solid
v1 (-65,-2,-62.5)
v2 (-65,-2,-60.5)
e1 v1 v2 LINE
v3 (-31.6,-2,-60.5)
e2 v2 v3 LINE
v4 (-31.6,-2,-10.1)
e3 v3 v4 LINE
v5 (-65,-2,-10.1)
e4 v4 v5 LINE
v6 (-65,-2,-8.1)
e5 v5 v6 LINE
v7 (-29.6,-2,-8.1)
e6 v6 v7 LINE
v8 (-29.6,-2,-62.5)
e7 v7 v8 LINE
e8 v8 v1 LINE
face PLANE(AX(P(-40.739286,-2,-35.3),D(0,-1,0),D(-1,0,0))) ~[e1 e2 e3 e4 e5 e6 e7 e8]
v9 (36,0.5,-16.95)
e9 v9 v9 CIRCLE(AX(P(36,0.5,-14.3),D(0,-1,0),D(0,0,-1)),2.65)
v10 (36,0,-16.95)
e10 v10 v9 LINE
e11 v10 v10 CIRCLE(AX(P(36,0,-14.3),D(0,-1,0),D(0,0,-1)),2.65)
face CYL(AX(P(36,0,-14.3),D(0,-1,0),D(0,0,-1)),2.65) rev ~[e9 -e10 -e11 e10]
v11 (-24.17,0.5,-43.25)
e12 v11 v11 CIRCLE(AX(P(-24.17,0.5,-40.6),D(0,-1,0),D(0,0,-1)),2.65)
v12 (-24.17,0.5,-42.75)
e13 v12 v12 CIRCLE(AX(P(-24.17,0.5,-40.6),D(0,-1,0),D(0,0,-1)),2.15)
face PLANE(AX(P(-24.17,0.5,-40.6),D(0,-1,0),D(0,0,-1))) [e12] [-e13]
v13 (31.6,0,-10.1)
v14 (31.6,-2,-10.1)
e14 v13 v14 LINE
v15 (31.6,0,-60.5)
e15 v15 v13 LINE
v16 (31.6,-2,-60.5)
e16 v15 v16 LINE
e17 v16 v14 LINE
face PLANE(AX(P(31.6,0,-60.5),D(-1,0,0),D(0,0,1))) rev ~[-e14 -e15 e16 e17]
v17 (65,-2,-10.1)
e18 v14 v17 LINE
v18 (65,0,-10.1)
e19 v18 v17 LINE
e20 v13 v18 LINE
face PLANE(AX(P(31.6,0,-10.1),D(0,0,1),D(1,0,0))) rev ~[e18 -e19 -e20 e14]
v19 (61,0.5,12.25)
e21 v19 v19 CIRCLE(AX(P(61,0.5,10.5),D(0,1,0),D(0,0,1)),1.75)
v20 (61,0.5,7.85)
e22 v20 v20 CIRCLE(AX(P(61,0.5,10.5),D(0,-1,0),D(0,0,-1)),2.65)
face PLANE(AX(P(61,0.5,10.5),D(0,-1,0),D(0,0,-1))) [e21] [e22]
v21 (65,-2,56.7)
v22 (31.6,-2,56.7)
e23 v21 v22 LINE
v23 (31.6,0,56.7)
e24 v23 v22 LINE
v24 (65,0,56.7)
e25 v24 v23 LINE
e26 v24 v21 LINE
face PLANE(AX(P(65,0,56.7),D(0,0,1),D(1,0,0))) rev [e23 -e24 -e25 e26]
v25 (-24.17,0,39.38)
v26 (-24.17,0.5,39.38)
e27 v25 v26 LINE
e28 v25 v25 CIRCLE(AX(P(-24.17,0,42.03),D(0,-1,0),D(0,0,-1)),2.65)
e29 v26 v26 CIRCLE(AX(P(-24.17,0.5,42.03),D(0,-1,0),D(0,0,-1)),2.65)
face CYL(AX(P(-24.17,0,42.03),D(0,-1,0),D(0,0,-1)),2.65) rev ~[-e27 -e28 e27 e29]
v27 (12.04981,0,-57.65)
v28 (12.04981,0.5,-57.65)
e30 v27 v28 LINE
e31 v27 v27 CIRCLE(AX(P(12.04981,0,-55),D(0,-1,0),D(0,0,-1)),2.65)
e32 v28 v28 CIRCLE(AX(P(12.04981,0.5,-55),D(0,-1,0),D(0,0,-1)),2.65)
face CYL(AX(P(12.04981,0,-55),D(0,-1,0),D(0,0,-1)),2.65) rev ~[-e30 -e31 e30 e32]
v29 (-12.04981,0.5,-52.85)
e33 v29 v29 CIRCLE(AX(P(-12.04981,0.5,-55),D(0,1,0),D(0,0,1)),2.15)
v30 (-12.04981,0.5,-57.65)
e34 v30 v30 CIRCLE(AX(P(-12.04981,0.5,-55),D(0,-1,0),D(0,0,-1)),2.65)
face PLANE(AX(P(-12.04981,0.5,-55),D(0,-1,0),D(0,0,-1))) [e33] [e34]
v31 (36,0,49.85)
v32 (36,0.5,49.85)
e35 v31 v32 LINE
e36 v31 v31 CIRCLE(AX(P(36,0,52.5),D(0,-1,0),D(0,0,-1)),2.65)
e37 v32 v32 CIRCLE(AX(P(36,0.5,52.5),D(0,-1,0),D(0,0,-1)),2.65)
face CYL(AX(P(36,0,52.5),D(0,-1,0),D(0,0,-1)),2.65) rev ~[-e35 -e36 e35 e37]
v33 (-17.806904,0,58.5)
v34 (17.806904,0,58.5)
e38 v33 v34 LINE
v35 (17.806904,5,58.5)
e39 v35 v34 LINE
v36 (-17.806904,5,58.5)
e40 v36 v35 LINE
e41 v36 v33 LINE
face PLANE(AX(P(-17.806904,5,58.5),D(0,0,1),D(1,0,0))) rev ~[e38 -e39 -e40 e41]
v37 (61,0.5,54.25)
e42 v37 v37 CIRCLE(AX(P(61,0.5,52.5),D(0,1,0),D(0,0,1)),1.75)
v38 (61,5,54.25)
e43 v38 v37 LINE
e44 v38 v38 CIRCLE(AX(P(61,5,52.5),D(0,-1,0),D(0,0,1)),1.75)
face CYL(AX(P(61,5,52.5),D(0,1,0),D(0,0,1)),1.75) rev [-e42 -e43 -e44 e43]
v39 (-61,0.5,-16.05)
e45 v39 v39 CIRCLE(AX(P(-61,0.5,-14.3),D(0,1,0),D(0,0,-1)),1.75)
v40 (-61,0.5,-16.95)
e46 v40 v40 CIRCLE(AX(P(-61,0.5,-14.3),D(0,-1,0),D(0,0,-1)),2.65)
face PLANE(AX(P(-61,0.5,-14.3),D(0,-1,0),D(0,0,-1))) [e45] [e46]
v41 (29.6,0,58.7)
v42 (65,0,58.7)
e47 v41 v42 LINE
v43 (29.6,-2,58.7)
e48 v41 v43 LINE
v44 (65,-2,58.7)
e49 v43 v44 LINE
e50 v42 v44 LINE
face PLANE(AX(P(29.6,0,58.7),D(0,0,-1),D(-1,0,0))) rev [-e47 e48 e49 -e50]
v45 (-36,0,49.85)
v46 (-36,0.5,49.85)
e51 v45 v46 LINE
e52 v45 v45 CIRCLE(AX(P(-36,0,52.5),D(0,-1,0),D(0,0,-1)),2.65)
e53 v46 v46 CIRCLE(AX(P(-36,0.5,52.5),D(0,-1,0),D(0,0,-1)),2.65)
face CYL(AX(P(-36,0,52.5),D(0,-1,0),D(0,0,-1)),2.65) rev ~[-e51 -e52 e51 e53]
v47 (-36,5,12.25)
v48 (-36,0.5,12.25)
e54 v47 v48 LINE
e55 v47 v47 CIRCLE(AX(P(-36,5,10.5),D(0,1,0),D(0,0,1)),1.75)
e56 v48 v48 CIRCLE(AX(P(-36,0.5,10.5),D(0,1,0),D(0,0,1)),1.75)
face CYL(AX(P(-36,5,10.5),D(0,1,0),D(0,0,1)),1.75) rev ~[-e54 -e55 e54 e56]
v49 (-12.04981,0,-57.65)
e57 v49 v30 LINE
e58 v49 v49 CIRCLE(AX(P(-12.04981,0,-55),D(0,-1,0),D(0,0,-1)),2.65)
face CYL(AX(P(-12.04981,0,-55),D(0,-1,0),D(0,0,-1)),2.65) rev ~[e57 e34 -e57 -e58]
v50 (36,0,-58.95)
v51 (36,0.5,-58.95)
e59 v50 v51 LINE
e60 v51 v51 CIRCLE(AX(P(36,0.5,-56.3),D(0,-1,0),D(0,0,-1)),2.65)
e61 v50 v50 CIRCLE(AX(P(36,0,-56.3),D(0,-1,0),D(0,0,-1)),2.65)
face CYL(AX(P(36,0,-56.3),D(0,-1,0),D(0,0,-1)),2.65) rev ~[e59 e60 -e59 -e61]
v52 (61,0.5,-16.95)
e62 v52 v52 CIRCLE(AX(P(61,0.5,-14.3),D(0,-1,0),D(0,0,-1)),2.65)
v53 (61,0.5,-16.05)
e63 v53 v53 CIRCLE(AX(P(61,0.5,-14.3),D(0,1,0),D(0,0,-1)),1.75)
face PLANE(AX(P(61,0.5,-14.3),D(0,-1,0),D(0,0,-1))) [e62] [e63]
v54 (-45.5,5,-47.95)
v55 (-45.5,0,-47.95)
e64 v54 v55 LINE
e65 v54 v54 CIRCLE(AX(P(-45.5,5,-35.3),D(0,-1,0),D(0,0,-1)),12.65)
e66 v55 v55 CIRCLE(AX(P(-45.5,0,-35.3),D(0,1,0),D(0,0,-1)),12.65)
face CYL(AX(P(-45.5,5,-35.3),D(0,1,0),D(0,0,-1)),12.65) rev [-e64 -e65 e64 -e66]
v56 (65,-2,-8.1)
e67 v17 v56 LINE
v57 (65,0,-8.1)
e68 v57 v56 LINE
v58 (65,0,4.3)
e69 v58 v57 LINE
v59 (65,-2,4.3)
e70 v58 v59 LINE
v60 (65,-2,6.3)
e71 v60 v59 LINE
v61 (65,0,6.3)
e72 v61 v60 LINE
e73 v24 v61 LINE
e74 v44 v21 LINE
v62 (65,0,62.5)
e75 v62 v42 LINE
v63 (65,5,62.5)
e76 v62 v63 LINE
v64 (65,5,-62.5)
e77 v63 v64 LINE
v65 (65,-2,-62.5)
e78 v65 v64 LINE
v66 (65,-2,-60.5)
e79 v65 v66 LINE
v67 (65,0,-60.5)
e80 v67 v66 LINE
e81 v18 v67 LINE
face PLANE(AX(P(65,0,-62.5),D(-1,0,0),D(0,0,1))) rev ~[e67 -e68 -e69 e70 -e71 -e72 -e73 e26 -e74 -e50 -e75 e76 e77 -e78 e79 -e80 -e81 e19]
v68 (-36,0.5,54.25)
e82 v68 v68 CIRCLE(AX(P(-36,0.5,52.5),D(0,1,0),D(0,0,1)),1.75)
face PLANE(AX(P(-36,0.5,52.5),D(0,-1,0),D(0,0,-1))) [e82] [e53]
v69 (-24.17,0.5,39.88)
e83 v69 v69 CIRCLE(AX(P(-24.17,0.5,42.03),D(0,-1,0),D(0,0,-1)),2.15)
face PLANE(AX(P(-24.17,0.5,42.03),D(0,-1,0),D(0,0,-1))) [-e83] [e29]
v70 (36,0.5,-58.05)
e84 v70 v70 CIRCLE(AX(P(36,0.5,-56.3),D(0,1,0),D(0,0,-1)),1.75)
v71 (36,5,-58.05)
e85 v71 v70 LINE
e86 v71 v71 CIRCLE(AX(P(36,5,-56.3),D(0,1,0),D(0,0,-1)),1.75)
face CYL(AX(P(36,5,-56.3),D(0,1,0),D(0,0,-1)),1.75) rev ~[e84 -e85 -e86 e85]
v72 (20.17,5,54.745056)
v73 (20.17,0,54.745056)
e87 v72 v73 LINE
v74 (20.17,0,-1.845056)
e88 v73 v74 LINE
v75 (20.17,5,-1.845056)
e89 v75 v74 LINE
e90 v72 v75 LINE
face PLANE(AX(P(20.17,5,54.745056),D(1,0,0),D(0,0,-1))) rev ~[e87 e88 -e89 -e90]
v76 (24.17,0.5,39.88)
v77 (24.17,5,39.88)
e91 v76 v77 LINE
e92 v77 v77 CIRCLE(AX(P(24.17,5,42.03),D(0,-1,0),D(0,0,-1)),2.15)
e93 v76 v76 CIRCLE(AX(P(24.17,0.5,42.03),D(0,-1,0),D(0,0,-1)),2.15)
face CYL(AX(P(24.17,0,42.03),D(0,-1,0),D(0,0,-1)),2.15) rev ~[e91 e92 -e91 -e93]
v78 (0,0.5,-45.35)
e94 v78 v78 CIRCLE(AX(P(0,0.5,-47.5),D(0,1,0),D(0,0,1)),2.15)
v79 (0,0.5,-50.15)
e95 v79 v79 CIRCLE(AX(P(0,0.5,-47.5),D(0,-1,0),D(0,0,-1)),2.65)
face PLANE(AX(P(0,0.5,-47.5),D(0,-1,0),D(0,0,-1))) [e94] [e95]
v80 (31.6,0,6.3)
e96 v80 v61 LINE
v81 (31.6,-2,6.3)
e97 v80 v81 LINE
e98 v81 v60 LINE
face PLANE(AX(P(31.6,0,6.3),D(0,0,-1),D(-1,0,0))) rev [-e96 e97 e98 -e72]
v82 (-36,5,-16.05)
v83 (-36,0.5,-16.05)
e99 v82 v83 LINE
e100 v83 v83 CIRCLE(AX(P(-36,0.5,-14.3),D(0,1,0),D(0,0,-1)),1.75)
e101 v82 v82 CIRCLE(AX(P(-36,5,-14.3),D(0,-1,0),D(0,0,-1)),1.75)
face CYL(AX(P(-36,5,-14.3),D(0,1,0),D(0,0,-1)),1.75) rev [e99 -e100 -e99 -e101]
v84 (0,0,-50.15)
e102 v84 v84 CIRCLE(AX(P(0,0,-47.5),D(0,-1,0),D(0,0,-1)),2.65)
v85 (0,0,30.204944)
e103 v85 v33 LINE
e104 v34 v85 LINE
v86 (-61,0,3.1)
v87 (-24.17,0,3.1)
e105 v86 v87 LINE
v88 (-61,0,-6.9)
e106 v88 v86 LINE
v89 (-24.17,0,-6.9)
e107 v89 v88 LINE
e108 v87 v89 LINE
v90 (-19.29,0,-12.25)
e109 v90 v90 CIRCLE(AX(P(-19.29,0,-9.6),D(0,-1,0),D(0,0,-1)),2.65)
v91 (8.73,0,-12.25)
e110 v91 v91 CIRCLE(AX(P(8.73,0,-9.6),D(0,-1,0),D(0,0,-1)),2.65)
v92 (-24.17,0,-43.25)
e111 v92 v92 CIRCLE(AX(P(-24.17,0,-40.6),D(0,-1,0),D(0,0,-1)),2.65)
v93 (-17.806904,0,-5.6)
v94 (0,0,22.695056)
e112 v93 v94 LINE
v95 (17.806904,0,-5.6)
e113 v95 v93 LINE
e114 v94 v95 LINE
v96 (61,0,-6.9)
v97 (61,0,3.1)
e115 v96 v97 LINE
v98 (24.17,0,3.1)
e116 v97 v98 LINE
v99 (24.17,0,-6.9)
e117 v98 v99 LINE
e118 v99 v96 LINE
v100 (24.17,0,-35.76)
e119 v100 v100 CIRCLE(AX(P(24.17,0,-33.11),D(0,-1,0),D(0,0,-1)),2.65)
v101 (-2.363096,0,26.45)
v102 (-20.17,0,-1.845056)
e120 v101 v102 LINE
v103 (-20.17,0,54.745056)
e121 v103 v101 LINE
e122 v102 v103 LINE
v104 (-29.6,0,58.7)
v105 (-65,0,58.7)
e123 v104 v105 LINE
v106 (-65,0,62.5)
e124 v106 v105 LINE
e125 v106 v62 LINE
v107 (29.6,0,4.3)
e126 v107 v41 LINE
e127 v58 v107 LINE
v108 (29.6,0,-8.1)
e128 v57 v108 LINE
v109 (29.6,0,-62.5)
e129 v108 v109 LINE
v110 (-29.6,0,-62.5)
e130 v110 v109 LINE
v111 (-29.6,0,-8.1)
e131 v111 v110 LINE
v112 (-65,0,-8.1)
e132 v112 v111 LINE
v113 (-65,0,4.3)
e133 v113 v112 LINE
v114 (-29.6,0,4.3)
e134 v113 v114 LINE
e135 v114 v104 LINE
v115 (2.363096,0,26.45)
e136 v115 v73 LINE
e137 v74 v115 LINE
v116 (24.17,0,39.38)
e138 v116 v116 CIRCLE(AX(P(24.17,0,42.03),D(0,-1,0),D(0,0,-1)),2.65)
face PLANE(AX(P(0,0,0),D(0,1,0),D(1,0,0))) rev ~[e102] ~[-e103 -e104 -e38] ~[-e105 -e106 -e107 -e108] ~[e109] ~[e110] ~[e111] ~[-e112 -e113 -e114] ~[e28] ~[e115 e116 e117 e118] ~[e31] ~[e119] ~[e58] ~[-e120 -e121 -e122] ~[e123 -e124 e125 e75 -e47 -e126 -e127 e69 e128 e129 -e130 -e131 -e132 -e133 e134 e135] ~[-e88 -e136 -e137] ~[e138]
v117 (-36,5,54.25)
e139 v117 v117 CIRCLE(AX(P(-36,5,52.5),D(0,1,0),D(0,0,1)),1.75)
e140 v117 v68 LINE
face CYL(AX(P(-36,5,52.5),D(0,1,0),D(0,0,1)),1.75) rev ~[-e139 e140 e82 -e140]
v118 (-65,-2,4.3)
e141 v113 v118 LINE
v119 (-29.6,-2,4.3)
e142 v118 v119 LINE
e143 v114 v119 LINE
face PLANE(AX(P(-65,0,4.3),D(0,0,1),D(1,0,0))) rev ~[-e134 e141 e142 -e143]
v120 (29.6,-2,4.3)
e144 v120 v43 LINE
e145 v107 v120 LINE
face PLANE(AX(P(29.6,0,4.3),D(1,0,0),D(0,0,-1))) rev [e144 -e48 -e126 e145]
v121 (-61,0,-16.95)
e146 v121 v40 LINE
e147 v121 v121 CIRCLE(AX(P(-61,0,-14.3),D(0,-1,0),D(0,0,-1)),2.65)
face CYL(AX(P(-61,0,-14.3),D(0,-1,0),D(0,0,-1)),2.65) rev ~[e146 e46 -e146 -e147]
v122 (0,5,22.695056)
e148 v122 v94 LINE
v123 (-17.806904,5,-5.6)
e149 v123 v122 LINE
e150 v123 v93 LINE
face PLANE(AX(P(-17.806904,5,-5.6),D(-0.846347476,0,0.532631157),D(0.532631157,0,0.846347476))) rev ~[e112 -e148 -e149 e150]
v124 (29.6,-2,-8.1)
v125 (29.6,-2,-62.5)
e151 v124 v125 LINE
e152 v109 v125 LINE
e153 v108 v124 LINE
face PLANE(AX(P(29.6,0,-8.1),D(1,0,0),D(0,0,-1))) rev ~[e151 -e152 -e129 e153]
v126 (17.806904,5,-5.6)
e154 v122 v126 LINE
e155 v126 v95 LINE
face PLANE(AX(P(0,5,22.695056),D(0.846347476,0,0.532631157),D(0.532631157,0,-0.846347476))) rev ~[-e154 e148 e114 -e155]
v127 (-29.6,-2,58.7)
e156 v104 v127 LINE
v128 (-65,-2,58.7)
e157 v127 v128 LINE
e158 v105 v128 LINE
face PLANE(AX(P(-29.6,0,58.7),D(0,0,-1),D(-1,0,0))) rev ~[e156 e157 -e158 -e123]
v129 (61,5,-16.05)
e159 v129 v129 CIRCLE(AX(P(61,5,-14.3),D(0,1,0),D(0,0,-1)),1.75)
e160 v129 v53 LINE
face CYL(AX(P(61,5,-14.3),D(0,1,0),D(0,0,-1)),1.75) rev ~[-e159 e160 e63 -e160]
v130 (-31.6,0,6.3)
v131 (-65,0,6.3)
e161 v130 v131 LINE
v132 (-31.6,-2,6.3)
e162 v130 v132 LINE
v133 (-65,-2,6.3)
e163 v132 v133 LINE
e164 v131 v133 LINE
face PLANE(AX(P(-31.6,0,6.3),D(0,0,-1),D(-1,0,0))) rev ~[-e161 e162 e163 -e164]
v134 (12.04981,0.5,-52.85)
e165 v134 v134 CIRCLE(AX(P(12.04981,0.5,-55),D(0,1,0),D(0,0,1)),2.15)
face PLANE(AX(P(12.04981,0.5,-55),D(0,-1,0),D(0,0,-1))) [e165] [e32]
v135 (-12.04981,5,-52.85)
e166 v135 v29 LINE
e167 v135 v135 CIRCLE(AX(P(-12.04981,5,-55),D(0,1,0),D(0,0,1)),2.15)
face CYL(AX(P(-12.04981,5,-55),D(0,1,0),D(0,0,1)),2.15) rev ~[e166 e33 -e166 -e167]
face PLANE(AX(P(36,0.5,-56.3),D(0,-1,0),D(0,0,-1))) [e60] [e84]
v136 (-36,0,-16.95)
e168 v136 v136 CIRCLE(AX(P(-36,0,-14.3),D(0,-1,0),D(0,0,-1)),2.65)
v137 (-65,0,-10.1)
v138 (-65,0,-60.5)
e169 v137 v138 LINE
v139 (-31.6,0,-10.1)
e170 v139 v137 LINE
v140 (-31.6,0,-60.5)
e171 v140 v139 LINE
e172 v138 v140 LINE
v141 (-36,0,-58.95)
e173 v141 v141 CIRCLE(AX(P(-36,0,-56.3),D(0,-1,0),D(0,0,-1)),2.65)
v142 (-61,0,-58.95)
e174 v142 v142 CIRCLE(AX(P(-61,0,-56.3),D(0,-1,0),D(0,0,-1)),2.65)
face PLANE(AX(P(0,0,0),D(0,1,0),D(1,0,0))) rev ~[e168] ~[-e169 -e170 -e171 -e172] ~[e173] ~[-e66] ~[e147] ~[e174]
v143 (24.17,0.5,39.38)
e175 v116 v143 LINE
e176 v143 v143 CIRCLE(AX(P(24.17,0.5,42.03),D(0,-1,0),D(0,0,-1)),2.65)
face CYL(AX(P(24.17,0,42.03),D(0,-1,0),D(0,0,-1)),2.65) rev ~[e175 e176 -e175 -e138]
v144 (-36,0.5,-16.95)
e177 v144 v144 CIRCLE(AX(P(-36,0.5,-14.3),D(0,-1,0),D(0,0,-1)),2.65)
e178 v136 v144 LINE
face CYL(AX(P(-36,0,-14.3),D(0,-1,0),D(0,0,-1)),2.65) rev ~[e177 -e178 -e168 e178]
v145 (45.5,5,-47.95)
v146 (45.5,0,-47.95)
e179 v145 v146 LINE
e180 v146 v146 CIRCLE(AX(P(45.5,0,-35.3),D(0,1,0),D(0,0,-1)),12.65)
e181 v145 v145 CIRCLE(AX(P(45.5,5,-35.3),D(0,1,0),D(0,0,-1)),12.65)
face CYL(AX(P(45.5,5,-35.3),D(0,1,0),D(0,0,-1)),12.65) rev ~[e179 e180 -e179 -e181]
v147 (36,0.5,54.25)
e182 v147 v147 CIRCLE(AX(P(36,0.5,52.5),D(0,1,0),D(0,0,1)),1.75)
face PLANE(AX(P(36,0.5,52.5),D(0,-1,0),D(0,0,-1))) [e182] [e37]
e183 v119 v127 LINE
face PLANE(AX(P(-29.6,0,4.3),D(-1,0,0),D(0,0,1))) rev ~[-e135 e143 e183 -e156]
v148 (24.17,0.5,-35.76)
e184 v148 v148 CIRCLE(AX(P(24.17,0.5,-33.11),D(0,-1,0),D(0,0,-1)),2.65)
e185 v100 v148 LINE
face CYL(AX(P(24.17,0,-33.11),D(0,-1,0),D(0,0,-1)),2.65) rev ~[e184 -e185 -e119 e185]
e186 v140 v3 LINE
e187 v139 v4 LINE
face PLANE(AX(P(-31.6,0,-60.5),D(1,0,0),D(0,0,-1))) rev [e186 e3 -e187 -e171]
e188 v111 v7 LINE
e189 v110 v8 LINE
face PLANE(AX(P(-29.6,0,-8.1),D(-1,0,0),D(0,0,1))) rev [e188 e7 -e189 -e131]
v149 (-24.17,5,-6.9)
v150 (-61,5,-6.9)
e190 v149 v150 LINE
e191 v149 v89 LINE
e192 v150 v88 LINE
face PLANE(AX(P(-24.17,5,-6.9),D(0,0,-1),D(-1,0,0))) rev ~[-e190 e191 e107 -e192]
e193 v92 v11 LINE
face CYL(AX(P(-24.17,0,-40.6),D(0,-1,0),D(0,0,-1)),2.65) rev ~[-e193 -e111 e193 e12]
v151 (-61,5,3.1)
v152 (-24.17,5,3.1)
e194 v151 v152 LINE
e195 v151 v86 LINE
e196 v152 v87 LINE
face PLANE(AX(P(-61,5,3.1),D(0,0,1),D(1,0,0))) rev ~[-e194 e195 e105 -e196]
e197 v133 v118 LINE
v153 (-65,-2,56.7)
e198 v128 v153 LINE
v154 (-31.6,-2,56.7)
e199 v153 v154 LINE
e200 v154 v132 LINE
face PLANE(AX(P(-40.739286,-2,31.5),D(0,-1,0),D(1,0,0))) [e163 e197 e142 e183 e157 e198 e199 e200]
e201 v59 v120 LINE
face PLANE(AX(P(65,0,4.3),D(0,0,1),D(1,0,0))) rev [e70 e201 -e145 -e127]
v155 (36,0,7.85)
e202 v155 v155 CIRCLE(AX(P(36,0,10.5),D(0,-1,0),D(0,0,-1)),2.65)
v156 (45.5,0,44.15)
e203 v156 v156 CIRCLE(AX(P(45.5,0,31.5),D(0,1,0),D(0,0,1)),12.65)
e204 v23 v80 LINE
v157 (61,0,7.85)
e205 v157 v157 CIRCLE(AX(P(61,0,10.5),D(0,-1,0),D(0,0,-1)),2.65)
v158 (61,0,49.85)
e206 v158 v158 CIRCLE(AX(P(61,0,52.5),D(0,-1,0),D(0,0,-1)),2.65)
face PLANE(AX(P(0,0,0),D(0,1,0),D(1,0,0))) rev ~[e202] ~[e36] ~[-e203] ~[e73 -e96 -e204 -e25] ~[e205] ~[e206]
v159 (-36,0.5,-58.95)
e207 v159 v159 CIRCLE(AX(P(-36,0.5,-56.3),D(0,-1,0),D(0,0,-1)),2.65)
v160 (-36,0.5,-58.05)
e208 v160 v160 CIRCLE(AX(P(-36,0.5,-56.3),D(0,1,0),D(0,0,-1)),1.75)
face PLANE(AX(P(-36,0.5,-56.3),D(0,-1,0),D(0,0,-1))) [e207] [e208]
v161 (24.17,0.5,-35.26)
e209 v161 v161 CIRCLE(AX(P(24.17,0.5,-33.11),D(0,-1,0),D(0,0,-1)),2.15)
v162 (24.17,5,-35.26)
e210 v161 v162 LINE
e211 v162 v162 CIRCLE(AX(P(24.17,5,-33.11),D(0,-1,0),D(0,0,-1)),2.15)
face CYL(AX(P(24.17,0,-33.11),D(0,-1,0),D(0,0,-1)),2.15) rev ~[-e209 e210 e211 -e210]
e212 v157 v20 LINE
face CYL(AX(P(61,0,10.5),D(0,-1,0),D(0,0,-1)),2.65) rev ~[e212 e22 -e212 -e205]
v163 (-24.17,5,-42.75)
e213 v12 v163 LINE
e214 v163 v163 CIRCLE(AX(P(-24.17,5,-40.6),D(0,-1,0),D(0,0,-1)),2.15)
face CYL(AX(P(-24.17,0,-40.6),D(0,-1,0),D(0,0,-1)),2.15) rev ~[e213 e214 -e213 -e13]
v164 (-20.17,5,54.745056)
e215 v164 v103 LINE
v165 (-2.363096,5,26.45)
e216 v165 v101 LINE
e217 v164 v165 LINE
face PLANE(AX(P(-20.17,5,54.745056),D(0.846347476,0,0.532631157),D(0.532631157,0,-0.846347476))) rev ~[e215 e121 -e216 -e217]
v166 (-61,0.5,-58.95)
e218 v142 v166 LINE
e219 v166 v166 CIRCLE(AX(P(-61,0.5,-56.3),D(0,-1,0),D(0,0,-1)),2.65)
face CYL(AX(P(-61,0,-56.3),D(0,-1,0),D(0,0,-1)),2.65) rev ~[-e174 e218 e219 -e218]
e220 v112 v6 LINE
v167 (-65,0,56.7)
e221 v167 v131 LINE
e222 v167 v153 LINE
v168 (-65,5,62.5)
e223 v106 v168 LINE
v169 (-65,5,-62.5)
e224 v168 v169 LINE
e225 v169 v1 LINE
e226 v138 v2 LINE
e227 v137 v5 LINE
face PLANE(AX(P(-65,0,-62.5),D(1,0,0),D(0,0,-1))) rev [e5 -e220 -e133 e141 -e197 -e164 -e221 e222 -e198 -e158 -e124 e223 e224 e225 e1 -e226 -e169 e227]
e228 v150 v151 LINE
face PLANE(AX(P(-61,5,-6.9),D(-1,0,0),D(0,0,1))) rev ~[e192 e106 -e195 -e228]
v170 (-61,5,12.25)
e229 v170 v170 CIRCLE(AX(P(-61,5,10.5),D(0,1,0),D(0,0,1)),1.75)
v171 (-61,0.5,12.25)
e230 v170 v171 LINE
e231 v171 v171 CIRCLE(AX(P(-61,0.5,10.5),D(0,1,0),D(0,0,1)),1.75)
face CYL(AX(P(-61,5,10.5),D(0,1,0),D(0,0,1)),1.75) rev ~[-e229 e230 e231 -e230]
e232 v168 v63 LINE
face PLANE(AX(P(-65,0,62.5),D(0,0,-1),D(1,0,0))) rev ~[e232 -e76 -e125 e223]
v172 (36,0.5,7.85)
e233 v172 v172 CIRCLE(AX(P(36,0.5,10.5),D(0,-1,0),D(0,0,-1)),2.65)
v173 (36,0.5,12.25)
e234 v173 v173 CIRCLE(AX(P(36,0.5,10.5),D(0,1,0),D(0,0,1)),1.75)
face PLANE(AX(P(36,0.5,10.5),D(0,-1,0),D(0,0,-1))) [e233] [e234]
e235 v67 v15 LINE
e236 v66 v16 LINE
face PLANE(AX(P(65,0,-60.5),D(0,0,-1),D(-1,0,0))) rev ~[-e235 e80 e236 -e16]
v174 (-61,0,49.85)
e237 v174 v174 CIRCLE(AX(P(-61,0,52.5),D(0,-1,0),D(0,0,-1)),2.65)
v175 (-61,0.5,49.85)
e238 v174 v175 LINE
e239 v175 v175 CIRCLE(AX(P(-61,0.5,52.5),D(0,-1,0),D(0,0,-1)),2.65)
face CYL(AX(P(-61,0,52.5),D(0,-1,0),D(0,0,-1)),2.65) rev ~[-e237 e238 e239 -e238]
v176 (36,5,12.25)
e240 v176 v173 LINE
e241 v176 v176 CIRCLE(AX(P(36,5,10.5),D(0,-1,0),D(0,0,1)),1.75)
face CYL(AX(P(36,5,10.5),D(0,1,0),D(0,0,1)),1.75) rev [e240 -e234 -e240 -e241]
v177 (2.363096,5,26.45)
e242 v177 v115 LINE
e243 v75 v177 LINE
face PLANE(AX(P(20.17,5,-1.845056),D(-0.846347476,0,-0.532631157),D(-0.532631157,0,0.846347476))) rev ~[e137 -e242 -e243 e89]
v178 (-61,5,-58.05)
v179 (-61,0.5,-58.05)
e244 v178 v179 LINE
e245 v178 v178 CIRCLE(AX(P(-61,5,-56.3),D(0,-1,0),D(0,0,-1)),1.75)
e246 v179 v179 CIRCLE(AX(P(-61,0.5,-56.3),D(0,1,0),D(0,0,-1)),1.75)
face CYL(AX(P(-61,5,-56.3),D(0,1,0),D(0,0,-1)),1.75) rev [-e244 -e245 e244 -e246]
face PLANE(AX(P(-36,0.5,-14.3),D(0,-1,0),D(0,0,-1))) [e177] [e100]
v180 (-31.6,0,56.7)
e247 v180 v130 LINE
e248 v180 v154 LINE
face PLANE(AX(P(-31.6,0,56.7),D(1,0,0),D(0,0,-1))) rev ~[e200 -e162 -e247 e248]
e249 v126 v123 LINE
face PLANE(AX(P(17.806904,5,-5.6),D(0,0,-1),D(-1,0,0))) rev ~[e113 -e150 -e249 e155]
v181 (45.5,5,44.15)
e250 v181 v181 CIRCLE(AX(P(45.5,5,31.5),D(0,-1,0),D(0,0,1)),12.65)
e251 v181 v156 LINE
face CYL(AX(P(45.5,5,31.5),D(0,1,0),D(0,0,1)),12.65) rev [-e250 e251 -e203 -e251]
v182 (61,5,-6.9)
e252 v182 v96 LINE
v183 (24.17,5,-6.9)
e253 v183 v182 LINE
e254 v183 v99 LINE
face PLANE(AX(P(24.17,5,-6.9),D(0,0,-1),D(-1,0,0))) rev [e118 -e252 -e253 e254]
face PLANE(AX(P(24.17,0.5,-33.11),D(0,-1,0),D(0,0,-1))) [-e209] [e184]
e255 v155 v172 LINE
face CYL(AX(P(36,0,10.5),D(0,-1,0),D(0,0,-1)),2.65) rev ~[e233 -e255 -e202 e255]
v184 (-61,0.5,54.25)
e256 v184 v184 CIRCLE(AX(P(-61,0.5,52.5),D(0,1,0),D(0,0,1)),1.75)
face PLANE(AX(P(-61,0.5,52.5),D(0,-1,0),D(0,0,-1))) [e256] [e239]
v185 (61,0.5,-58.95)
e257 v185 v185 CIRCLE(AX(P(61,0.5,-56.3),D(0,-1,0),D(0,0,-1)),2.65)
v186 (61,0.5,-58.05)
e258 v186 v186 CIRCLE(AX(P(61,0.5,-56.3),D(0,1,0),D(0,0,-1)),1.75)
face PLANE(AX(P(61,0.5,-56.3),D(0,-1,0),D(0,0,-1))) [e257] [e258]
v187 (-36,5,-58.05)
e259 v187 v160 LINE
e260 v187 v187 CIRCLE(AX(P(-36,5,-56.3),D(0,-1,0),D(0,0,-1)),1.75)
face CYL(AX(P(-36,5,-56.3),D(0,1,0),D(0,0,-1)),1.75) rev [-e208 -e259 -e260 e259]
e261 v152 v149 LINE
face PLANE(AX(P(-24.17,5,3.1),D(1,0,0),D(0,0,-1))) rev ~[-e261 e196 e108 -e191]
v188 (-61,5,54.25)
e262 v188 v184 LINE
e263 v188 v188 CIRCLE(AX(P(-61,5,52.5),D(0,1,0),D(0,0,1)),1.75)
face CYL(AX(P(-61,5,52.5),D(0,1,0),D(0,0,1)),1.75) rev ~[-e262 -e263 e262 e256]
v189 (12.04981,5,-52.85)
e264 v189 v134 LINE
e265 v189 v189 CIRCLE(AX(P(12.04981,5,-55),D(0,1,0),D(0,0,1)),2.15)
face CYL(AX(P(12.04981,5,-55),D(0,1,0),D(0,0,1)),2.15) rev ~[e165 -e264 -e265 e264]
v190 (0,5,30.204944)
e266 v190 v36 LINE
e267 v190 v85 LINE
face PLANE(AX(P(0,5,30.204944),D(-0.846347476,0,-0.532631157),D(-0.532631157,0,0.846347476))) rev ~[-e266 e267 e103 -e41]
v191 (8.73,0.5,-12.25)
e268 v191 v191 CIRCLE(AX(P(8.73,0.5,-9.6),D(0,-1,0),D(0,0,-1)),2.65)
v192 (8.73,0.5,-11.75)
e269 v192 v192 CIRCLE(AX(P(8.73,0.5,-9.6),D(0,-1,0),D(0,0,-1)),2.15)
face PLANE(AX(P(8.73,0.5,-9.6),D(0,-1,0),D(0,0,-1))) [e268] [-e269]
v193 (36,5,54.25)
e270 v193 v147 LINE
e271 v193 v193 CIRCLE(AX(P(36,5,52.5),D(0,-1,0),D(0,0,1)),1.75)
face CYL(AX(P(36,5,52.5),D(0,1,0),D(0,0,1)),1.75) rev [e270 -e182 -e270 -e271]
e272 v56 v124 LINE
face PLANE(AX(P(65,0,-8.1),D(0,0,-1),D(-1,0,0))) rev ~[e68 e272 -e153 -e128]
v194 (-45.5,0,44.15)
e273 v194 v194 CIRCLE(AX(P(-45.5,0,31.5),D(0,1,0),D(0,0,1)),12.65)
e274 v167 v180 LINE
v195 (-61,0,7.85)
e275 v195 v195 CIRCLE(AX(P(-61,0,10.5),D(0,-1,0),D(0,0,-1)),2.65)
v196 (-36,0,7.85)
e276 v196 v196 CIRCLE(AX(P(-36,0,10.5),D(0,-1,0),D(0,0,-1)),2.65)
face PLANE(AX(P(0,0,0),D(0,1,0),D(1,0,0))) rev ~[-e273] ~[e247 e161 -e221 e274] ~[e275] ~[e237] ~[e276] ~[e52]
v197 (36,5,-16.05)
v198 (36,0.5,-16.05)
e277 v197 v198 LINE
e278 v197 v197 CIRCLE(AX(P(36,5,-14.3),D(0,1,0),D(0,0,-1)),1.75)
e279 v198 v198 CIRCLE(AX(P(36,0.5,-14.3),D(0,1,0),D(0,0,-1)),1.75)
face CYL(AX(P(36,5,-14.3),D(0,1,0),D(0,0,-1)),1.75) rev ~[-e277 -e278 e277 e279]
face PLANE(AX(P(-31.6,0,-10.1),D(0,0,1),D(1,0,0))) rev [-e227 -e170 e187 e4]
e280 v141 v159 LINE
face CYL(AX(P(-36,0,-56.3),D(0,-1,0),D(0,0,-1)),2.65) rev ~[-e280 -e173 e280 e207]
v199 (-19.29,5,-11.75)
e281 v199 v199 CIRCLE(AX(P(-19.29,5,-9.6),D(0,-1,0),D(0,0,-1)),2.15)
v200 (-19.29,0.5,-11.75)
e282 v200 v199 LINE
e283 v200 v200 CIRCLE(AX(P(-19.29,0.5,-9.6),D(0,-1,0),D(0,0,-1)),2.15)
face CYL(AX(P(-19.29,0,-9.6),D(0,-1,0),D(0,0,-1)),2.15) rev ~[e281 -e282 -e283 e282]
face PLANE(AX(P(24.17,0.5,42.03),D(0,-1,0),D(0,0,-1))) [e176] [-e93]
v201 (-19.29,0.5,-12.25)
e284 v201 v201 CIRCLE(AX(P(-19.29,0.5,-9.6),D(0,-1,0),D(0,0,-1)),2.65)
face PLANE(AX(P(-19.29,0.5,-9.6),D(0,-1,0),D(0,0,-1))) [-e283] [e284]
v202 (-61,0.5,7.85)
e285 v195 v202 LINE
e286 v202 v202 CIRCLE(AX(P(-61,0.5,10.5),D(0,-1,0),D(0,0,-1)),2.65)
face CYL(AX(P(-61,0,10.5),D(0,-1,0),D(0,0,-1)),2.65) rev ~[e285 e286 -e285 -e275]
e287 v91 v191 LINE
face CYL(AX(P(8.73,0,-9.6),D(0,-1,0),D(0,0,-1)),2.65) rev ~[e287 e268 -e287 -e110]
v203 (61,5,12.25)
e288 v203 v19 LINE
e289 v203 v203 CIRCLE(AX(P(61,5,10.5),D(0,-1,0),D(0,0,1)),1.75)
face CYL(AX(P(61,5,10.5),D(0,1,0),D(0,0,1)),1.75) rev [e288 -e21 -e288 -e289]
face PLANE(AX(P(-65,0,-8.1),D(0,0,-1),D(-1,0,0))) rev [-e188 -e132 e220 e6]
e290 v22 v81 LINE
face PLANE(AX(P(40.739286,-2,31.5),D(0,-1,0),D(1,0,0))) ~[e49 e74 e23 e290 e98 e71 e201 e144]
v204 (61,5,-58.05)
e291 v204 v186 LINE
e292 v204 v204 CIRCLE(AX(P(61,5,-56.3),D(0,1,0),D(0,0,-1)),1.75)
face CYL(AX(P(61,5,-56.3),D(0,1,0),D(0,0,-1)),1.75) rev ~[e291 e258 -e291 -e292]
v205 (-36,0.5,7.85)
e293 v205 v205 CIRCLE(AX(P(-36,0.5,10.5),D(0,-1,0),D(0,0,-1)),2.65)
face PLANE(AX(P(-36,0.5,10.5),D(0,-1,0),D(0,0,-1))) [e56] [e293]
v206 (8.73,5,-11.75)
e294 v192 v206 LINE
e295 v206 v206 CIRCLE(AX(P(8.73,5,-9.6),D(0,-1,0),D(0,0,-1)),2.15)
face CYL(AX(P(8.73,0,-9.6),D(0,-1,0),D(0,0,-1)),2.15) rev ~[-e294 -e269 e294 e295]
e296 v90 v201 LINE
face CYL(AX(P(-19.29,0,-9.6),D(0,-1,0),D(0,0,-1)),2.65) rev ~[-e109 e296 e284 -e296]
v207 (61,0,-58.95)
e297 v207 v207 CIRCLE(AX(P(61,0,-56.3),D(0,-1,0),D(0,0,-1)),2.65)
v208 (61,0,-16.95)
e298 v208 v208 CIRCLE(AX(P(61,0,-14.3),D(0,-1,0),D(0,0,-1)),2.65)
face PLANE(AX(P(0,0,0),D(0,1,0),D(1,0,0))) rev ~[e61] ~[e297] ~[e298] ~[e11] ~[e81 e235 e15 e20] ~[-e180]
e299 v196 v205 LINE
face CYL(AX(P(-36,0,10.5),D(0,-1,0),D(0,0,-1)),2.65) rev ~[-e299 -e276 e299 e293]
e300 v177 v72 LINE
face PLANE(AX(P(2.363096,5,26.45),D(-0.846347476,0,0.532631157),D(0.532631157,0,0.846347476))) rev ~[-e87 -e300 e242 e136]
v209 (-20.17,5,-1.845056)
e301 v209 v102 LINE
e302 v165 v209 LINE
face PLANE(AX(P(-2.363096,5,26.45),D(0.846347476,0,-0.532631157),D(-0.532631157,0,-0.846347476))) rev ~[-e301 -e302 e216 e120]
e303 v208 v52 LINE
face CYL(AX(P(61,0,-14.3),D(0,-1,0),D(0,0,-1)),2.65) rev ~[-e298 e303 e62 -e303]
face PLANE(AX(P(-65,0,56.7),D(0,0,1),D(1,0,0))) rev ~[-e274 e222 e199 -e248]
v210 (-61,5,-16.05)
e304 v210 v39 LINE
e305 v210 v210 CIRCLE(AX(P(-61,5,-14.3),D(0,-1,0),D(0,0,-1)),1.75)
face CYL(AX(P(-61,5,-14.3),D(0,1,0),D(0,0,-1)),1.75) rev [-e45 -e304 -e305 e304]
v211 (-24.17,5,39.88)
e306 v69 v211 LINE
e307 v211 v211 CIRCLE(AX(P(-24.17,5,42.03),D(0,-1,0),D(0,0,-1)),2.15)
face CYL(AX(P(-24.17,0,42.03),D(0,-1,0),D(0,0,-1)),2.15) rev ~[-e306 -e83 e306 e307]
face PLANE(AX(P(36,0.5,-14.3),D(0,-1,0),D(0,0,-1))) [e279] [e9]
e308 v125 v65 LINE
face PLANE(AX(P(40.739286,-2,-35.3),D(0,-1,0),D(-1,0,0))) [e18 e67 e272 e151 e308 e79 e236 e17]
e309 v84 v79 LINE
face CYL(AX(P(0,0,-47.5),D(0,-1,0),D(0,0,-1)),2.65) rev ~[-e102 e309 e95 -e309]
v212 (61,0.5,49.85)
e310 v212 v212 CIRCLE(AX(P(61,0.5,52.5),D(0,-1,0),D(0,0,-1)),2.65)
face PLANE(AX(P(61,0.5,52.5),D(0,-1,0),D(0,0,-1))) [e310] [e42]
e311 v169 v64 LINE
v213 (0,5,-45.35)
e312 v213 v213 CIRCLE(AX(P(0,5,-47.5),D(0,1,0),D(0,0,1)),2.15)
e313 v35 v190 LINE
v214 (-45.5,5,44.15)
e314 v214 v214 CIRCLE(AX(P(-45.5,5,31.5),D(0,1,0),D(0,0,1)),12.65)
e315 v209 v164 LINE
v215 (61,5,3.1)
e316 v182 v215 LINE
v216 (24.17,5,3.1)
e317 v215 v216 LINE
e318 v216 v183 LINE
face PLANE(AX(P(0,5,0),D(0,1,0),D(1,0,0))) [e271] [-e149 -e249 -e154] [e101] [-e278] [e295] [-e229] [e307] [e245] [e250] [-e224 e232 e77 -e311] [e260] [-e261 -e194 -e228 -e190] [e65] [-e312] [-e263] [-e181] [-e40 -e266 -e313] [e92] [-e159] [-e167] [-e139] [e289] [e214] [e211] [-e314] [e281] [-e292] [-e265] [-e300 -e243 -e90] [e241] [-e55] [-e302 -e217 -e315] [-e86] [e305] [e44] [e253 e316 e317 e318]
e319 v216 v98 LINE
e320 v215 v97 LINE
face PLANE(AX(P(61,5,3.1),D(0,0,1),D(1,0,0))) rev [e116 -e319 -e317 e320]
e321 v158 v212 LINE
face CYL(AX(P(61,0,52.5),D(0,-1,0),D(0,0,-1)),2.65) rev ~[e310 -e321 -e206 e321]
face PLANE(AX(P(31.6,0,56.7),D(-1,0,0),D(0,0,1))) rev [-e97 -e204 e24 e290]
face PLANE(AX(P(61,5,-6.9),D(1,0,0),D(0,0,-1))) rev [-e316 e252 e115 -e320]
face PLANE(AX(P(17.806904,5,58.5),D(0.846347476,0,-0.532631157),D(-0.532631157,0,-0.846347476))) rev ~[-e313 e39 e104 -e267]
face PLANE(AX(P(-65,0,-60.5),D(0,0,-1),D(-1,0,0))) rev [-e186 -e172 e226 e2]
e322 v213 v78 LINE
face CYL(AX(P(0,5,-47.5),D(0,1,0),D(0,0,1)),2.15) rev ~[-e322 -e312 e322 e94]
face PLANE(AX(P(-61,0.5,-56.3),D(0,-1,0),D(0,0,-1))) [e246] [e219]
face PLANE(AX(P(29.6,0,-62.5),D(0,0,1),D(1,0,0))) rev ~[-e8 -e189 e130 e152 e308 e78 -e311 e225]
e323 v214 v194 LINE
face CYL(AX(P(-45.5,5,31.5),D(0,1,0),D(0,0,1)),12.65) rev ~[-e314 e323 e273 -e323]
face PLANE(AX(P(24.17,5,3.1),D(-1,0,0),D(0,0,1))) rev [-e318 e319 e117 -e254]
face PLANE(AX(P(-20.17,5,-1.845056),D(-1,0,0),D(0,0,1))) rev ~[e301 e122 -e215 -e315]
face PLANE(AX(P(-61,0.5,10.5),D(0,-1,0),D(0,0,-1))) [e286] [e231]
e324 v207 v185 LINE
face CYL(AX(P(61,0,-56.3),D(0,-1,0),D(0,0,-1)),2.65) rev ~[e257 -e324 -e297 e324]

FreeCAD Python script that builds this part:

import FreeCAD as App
import Part
import Sketcher
from FreeCAD import Vector
Q = App.Units.Quantity


def add_polygon(sketch, points):
    """Adds a closed chain of lines whose ends are joined by coincident constraints."""
    first, n = sketch.GeometryCount, len(points)
    for a, b in zip(points, points[1:] + points[:1]):
        sketch.addGeometry(Part.LineSegment(App.Vector(*a, 0), App.Vector(*b, 0)), False)
    for i in range(n):
        sketch.addConstraint(Sketcher.Constraint("Coincident", first + i, 2, first + (i + 1) % n, 1))

doc = App.newDocument("Part")
body = doc.addObject("PartDesign::Body", "Body")

sketch1 = body.newObject("Sketcher::SketchObject", "Sketch")
sketch1.AttachmentSupport = (doc.getObject("XZ_Plane"), [""])
sketch1.MapMode = "FlatFace"
add_polygon(sketch1, [(-65, -62), (-65, 62), (65, 62), (65, -62)])
sketch1.addConstraint([
    Sketcher.Constraint("Vertical", 0),
    Sketcher.Constraint("Horizontal", 1),
    Sketcher.Constraint("Vertical", 2),
    Sketcher.Constraint("Horizontal", 3),
    Sketcher.Constraint("Symmetric", 0, 2, 2, 2, -1, 1),
    Sketcher.Constraint("DistanceX", 1, 1, 1, 2, Q("130 mm")),
    Sketcher.Constraint("DistanceY", 0, 1, 0, 2, Q("125 mm")),
])
pad1 = body.newObject("PartDesign::Pad", "Pad")
pad1.Profile = sketch1
pad1.Length = 5
pad1.Reversed = True

sketch2 = body.newObject("Sketcher::SketchObject", "Sketch001")
sketch2.AttachmentSupport = (doc.getObject("XZ_Plane"), [""])
sketch2.MapMode = "FlatFace"
sketch2.AttachmentOffset = App.Placement(Vector(0, 0, -5), App.Rotation())
sketch2.addGeometry([
    Part.Circle(Vector(-61, 52.5, 0), Vector(0, 0, 1), 1.8),
    Part.Circle(Vector(-36, 52.5, 0), Vector(0, 0, 1), 1.8),
    Part.Circle(Vector(-36, 10.5, 0), Vector(0, 0, 1), 1.8),
    Part.Circle(Vector(-61, 10.5, 0), Vector(0, 0, 1), 1.8),
    Part.Circle(Vector(-45.5, 31.5, 0), Vector(0, 0, 1), 12.7),
], False)
sketch2.addConstraint([
    Sketcher.Constraint("Equal", 0, 1),
    Sketcher.Constraint("Equal", 1, 2),
    Sketcher.Constraint("Equal", 2, 3),
    Sketcher.Constraint("Horizontal", 0, 3, 1, 3),
    Sketcher.Constraint("Horizontal", 2, 3, 3, 3),
    Sketcher.Constraint("Vertical", 1, 3, 2, 3),
    Sketcher.Constraint("Vertical", 0, 3, 3, 3),
    Sketcher.Constraint("Diameter", 0, Q("3.5 mm")),
    Sketcher.Constraint("Diameter", 4, Q("25.3 mm")),
    Sketcher.Constraint("DistanceX", 0, 3, -1, 1, Q("61 mm")),
    Sketcher.Constraint("DistanceX", 1, 3, -1, 1, Q("36 mm")),
    Sketcher.Constraint("DistanceY", 2, 3, 1, 3, Q("42 mm")),
    Sketcher.Constraint("DistanceY", 4, 3, 1, 3, Q("21 mm")),
    Sketcher.Constraint("DistanceY", -1, 1, 0, 3, Q("52.5 mm")),
    Sketcher.Constraint("DistanceX", 4, 3, -1, 1, Q("45.5 mm")),
])
pocket1 = body.newObject("PartDesign::Pocket", "Pocket")
pocket1.Profile = sketch2
pocket1.Length = 10
pocket1.Reversed = True
doc.recompute()

mirrored = body.newObject("PartDesign::Mirrored", "Mirrored")
mirrored.Originals = [pocket1]
mirrored.MirrorPlane = (doc.getObject("YZ_Plane"), [""])
body.Tip = mirrored

sketch3 = body.newObject("Sketcher::SketchObject", "Sketch002")
sketch3.AttachmentSupport = (doc.getObject("XZ_Plane"), [""])
sketch3.MapMode = "FlatFace"
sketch3.AttachmentOffset = App.Placement(Vector(0, 0, -5), App.Rotation())
sketch3.addGeometry([
    Part.Circle(Vector(0, -47.5, 0), Vector(0, 0, 1), 2.1),
    Part.Circle(Vector(12, -55, 0), Vector(0, 0, 1), 2.1),
    Part.Circle(Vector(-12, -55, 0), Vector(0, 0, 1), 2.1),
], False)
sketch3.addConstraint([
    Sketcher.Constraint("Equal", 0, 1),
    Sketcher.Constraint("Equal", 1, 2),
    Sketcher.Constraint("Symmetric", 1, 3, 2, 3, -2),
    Sketcher.Constraint("PointOnObject", 0, 3, -2),
    Sketcher.Constraint("Diameter", 0, Q("4.3 mm")),
    Sketcher.Constraint("DistanceY", 1, 3, -1, 1, Q("55 mm")),
    Sketcher.Constraint("DistanceY", 0, 3, -1, 1, Q("47.5 mm")),
    Sketcher.Constraint("DistanceX", -1, 1, 1, 3, Q("12.04981 mm")),
])
pocket2 = body.newObject("PartDesign::Pocket", "Pocket001")
pocket2.Profile = sketch3
pocket2.Length = 10
pocket2.Reversed = True

sketch4 = body.newObject("Sketcher::SketchObject", "Sketch003")
sketch4.AttachmentSupport = (doc.getObject("XZ_Plane"), [""])
sketch4.MapMode = "FlatFace"
add_polygon(sketch4, [(-65, 58.7), (-65, 56.7), (-31.6, 56.7), (-31.6, 6.3), (-65, 6.3), (-65, 4.3), (-29.6, 4.3), (-29.6, 58.7)])
sketch4.addConstraint([
    Sketcher.Constraint("Vertical", 0),
    Sketcher.Constraint("Horizontal", 1),
    Sketcher.Constraint("Vertical", 2),
    Sketcher.Constraint("Horizontal", 3),
    Sketcher.Constraint("Vertical", 4),
    Sketcher.Constraint("Horizontal", 5),
    Sketcher.Constraint("Vertical", 6),
    Sketcher.Constraint("Horizontal", 7),
    Sketcher.Constraint("Vertical", 0, 2, 3, 2),
    Sketcher.Constraint("Equal", 0, 4),
    Sketcher.Constraint("DistanceY", 0, 2, 0, 1, Q("2 mm")),
    Sketcher.Constraint("DistanceX", 1, 1, 1, 2, Q("33.4 mm")),
    Sketcher.Constraint("DistanceX", 5, 1, 5, 2, Q("35.4 mm")),
    Sketcher.Constraint("DistanceY", 2, 2, 2, 1, Q("50.4 mm")),
    Sketcher.Constraint("DistanceX", 0, 2, -1, 1, Q("65 mm")),
    Sketcher.Constraint("DistanceY", -1, 1, 0, 2, Q("56.7 mm")),
])
pad2 = body.newObject("PartDesign::Pad", "Pad001")
pad2.Profile = sketch4
pad2.Length = 2
doc.recompute()

mirrored2 = body.newObject("PartDesign::Mirrored", "Mirrored001")
mirrored2.Originals = [pad2]
mirrored2.MirrorPlane = (doc.getObject("YZ_Plane"), [""])
body.Tip = mirrored2
doc.recompute()

datumplane = body.newObject("PartDesign::Plane", "DatumPlane")
datumplane.AttachmentSupport = (doc.getObject("XY_Plane"), [""])
datumplane.MapMode = "FlatFace"
datumplane.AttachmentOffset = App.Placement(Vector(0, 0, -1.9), App.Rotation())
mirrored3 = body.newObject("PartDesign::Mirrored", "Mirrored002")
mirrored3.Originals = [pocket1, pad2]
mirrored3.MirrorPlane = (datumplane, [""])
body.Tip = mirrored3

sketch5 = body.newObject("Sketcher::SketchObject", "Sketch004")
sketch5.AttachmentSupport = (doc.getObject("XZ_Plane"), [""])
sketch5.MapMode = "FlatFace"
sketch5.AttachmentOffset = App.Placement(Vector(0, 0, -5), App.Rotation())
sketch5.addGeometry([
    Part.Circle(Vector(61, -56.3, 0), Vector(0, 0, 1), 1.8),
    Part.Circle(Vector(36, -56.3, 0), Vector(0, 0, 1), 1.8),
    Part.Circle(Vector(36, -14.3, 0), Vector(0, 0, 1), 1.8),
    Part.Circle(Vector(61, -14.3, 0), Vector(0, 0, 1), 1.8),
    Part.Circle(Vector(45.5, -35.3, 0), Vector(0, 0, 1), 12.7),
], False)
sketch5.addConstraint([
    Sketcher.Constraint("Equal", 0, 1),
    Sketcher.Constraint("Equal", 1, 2),
    Sketcher.Constraint("Equal", 2, 3),
    Sketcher.Constraint("Horizontal", 0, 3, 1, 3),
    Sketcher.Constraint("Horizontal", 2, 3, 3, 3),
    Sketcher.Constraint("Vertical", 1, 3, 2, 3),
    Sketcher.Constraint("Vertical", 0, 3, 3, 3),
    Sketcher.Constraint("Diameter", 0, Q("3.5 mm")),
    Sketcher.Constraint("Diameter", 4, Q("25.3 mm")),
    Sketcher.Constraint("DistanceX", -1, 1, 0, 3, Q("61 mm")),
    Sketcher.Constraint("DistanceX", -1, 1, 1, 3, Q("36 mm")),
    Sketcher.Constraint("DistanceY", 1, 3, 2, 3, Q("42 mm")),
    Sketcher.Constraint("DistanceY", 4, 3, 2, 3, Q("21 mm")),
    Sketcher.Constraint("DistanceY", 0, 3, -1, 1, Q("56.3 mm")),
    Sketcher.Constraint("DistanceX", -1, 1, 4, 3, Q("45.5 mm")),
])
pocket3 = body.newObject("PartDesign::Pocket", "Pocket002")
pocket3.Profile = sketch5
pocket3.Length = 10
pocket3.Reversed = True

sketch6 = body.newObject("Sketcher::SketchObject", "Sketch005")
sketch6.AttachmentSupport = (doc.getObject("XZ_Plane"), [""])
sketch6.MapMode = "FlatFace"
add_polygon(sketch6, [(65, -62.5), (65, -60.5), (31.6, -60.5), (31.6, -10.1), (65, -10.1), (65, -8.1), (29.6, -8.1), (29.6, -62.5)])
sketch6.addConstraint([
    Sketcher.Constraint("Vertical", 0),
    Sketcher.Constraint("Horizontal", 1),
    Sketcher.Constraint("Vertical", 2),
    Sketcher.Constraint("Horizontal", 3),
    Sketcher.Constraint("Vertical", 4),
    Sketcher.Constraint("Horizontal", 5),
    Sketcher.Constraint("Vertical", 6),
    Sketcher.Constraint("Horizontal", 7),
    Sketcher.Constraint("Vertical", 0, 2, 3, 2),
    Sketcher.Constraint("Equal", 0, 4),
    Sketcher.Constraint("DistanceY", 0, 1, 0, 2, Q("2 mm")),
    Sketcher.Constraint("DistanceX", 1, 2, 1, 1, Q("33.4 mm")),
    Sketcher.Constraint("DistanceX", 5, 2, 5, 1, Q("35.4 mm")),
    Sketcher.Constraint("DistanceY", 2, 1, 2, 2, Q("50.4 mm")),
    Sketcher.Constraint("DistanceX", -1, 1, 0, 2, Q("65 mm")),
    Sketcher.Constraint("DistanceY", 0, 2, -1, 1, Q("60.5 mm")),
])
pad3 = body.newObject("PartDesign::Pad", "Pad002")
pad3.Profile = sketch6
pad3.Length = 2

sketch7 = body.newObject("Sketcher::SketchObject", "Sketch006")
sketch7.AttachmentSupport = (doc.getObject("XZ_Plane"), [""])
sketch7.MapMode = "FlatFace"
sketch7.addGeometry([
    Part.Circle(Vector(24.2, 42, 0), Vector(0, 0, 1), 2.1),
    Part.Circle(Vector(-24.2, 42, 0), Vector(0, 0, 1), 2.1),
    Part.Circle(Vector(8.7, -9.6, 0), Vector(0, 0, 1), 2.1),
    Part.Circle(Vector(-19.3, -9.6, 0), Vector(0, 0, 1), 2.1),
    Part.Circle(Vector(24.2, -33.1, 0), Vector(0, 0, 1), 2.1),
    Part.Circle(Vector(-24.2, -40.6, 0), Vector(0, 0, 1), 2.1),
], False)
sketch7.addConstraint([
    Sketcher.Constraint("Equal", 0, 1),
    Sketcher.Constraint("Equal", 1, 2),
    Sketcher.Constraint("Equal", 2, 3),
    Sketcher.Constraint("Equal", 3, 4),
    Sketcher.Constraint("Equal", 4, 5),
    Sketcher.Constraint("Symmetric", 0, 3, 1, 3, -2),
    Sketcher.Constraint("Horizontal", 2, 3, 3, 3),
    Sketcher.Constraint("Vertical", 0, 3, 4, 3),
    Sketcher.Constraint("Vertical", 1, 3, 5, 3),
    Sketcher.Constraint("Diameter", 0, Q("4.3 mm")),
    Sketcher.Constraint("DistanceY", 5, 3, 3, 3, Q("31 mm")),
    Sketcher.Constraint("DistanceY", 2, 3, -1, 1, Q("9.6 mm")),
    Sketcher.Constraint("DistanceX", 1, 3, 2, 3, Q("32.9 mm")),
    Sketcher.Constraint("DistanceX", -1, 1, 0, 3, Q("24.17 mm")),
    Sketcher.Constraint("DistanceY", -1, 1, 0, 3, Q("42.03 mm")),
    Sketcher.Constraint("DistanceX", 3, 3, -1, 1, Q("19.29 mm")),
    Sketcher.Constraint("DistanceY", 4, 3, -1, 1, Q("33.11 mm")),
])
pocket4 = body.newObject("PartDesign::Pocket", "Pocket003")
pocket4.Profile = sketch7
pocket4.Type = "ThroughAll"

sketch8 = body.newObject("Sketcher::SketchObject", "Sketch007")
sketch8.AttachmentSupport = (doc.getObject("XZ_Plane"), [""])
sketch8.MapMode = "FlatFace"
sketch8.addGeometry([
    Part.Circle(Vector(-12, -55, 0), Vector(0, 0, 1), 2.6),
    Part.Circle(Vector(0, -47.5, 0), Vector(0, 0, 1), 2.6),
    Part.Circle(Vector(12, -55, 0), Vector(0, 0, 1), 2.6),
    Part.Circle(Vector(-24.2, -40.6, 0), Vector(0, 0, 1), 2.6),
    Part.Circle(Vector(24.2, -33.1, 0), Vector(0, 0, 1), 2.6),
    Part.Circle(Vector(8.7, -9.6, 0), Vector(0, 0, 1), 2.6),
    Part.Circle(Vector(-19.3, -9.6, 0), Vector(0, 0, 1), 2.6),
    Part.Circle(Vector(-24.2, 42, 0), Vector(0, 0, 1), 2.6),
    Part.Circle(Vector(24.2, 42, 0), Vector(0, 0, 1), 2.6),
    Part.Circle(Vector(-61, -14.3, 0), Vector(0, 0, 1), 2.6),
    Part.Circle(Vector(-36, -14.3, 0), Vector(0, 0, 1), 2.6),
    Part.Circle(Vector(-61, -56.3, 0), Vector(0, 0, 1), 2.6),
    Part.Circle(Vector(-36, -56.3, 0), Vector(0, 0, 1), 2.6),
    Part.Circle(Vector(36, -56.3, 0), Vector(0, 0, 1), 2.6),
    Part.Circle(Vector(61, -56.3, 0), Vector(0, 0, 1), 2.6),
    Part.Circle(Vector(36, -14.3, 0), Vector(0, 0, 1), 2.6),
    Part.Circle(Vector(61, -14.3, 0), Vector(0, 0, 1), 2.6),
    Part.Circle(Vector(36, 10.5, 0), Vector(0, 0, 1), 2.6),
    Part.Circle(Vector(61, 10.5, 0), Vector(0, 0, 1), 2.6),
    Part.Circle(Vector(61, 52.5, 0), Vector(0, 0, 1), 2.6),
    Part.Circle(Vector(36, 52.5, 0), Vector(0, 0, 1), 2.6),
    Part.Circle(Vector(-36, 52.5, 0), Vector(0, 0, 1), 2.6),
    Part.Circle(Vector(-36, 10.5, 0), Vector(0, 0, 1), 2.6),
    Part.Circle(Vector(-61, 10.5, 0), Vector(0, 0, 1), 2.6),
    Part.Circle(Vector(-61, 52.5, 0), Vector(0, 0, 1), 2.6),
], False)
sketch8.addConstraint([
    Sketcher.Constraint("Equal", 0, 1),
    Sketcher.Constraint("Equal", 1, 2),
    Sketcher.Constraint("Equal", 2, 3),
    Sketcher.Constraint("Equal", 3, 4),
    Sketcher.Constraint("Equal", 4, 5),
    Sketcher.Constraint("Equal", 5, 6),
    Sketcher.Constraint("Equal", 6, 7),
    Sketcher.Constraint("Equal", 7, 8),
    Sketcher.Constraint("Equal", 8, 9),
    Sketcher.Constraint("Equal", 9, 10),
    Sketcher.Constraint("Equal", 10, 11),
    Sketcher.Constraint("Equal", 11, 12),
    Sketcher.Constraint("Equal", 12, 13),
    Sketcher.Constraint("Equal", 13, 14),
    Sketcher.Constraint("Equal", 14, 15),
    Sketcher.Constraint("Equal", 15, 16),
    Sketcher.Constraint("Equal", 16, 17),
    Sketcher.Constraint("Equal", 17, 18),
    Sketcher.Constraint("Equal", 18, 19),
    Sketcher.Constraint("Equal", 19, 20),
    Sketcher.Constraint("Equal", 20, 21),
    Sketcher.Constraint("Equal", 21, 22),
    Sketcher.Constraint("Equal", 22, 23),
    Sketcher.Constraint("Equal", 23, 24),
    Sketcher.Constraint("Symmetric", 0, 3, 2, 3, -2),
    Sketcher.Constraint("Symmetric", 7, 3, 8, 3, -2),
    Sketcher.Constraint("Symmetric", 12, 3, 13, 3, -2),
    Sketcher.Constraint("Symmetric", 11, 3, 14, 3, -2),
    Sketcher.Constraint("Symmetric", 10, 3, 15, 3, -2),
    Sketcher.Constraint("Symmetric", 9, 3, 16, 3, -2),
    Sketcher.Constraint("Symmetric", 20, 3, 21, 3, -2),
    Sketcher.Constraint("Symmetric", 17, 3, 22, 3, -2),
    Sketcher.Constraint("Symmetric", 18, 3, 23, 3, -2),
    Sketcher.Constraint("Symmetric", 19, 3, 24, 3, -2),
    Sketcher.Constraint("PointOnObject", 1, 3, -2),
    Sketcher.Constraint("Horizontal", 5, 3, 6, 3),
    Sketcher.Constraint("Horizontal", 9, 3, 10, 3),
    Sketcher.Constraint("Horizontal", 11, 3, 12, 3),
    Sketcher.Constraint("Horizontal", 17, 3, 18, 3),
    Sketcher.Constraint("Horizontal", 19, 3, 20, 3),
    Sketcher.Constraint("Vertical", 3, 3, 7, 3),
    Sketcher.Constraint("Vertical", 4, 3, 8, 3),
    Sketcher.Constraint("Vertical", 9, 3, 11, 3),
    Sketcher.Constraint("Vertical", 10, 3, 12, 3),
    Sketcher.Constraint("Vertical", 15, 3, 17, 3),
    Sketcher.Constraint("Vertical", 16, 3, 18, 3),
    Sketcher.Constraint("Vertical", 18, 3, 19, 3),
    Sketcher.Constraint("Vertical", 17, 3, 20, 3),
    Sketcher.Constraint("Diameter", 0, Q("5.3 mm")),
    Sketcher.Constraint("DistanceY", 0, 3, -1, 1, Q("55 mm")),
    Sketcher.Constraint("DistanceX", 9, 3, -1, 1, Q("61 mm")),
    Sketcher.Constraint("DistanceX", 10, 3, -1, 1, Q("36 mm")),
    Sketcher.Constraint("DistanceY", 3, 3, 5, 3, Q("31 mm")),
    Sketcher.Constraint("DistanceY", 11, 3, 9, 3, Q("42 mm")),
    Sketcher.Constraint("DistanceY", 18, 3, 19, 3, Q("42 mm")),
    Sketcher.Constraint("DistanceY", 1, 3, -1, 1, Q("47.5 mm")),
    Sketcher.Constraint("DistanceY", 3, 3, -1, 1, Q("40.6 mm")),
    Sketcher.Constraint("DistanceY", 9, 3, -1, 1, Q("14.3 mm")),
    Sketcher.Constraint("DistanceY", -1, 1, 17, 3, Q("10.5 mm")),
    Sketcher.Constraint("DistanceX", 3, 3, 5, 3, Q("32.9 mm")),
    Sketcher.Constraint("DistanceX", 3, 3, -1, 1, Q("24.17 mm")),
    Sketcher.Constraint("DistanceY", 4, 3, -1, 1, Q("33.11 mm")),
    Sketcher.Constraint("DistanceX", 6, 3, -1, 1, Q("19.29 mm")),
    Sketcher.Constraint("DistanceY", -1, 1, 7, 3, Q("42.03 mm")),
    Sketcher.Constraint("DistanceX", 0, 3, -1, 1, Q("12.04981 mm")),
])
pocket5 = body.newObject("PartDesign::Pocket", "Pocket004")
pocket5.Profile = sketch8
pocket5.Length = 0.5

sketch9 = body.newObject("Sketcher::SketchObject", "Sketch008")
sketch9.AttachmentSupport = (doc.getObject("XZ_Plane"), [""])
sketch9.MapMode = "FlatFace"
sketch9.AttachmentOffset = App.Placement(Vector(0, 0, -5), App.Rotation())
add_polygon(sketch9, [(-2, 26), (-20, -2), (-20, 55)])
add_polygon(sketch9, [(18, -6), (-18, -6), (0, 23)])
add_polygon(sketch9, [(20, 55), (20, -2), (2, 26)])
add_polygon(sketch9, [(0, 30), (-18, 58), (18, 58)])
sketch9.addConstraint([
    Sketcher.Constraint("Vertical", 1),
    Sketcher.Constraint("Horizontal", 3),
    Sketcher.Constraint("Vertical", 6),
    Sketcher.Constraint("Horizontal", 10),
    Sketcher.Constraint("Symmetric", 0, 2, 6, 2, -2),
    Sketcher.Constraint("Symmetric", 2, 2, 7, 2, -2),
    Sketcher.Constraint("PointOnObject", 4, 2, -2),
    Sketcher.Constraint("PointOnObject", 11, 2, -2),
    Sketcher.Constraint("Parallel", 0, 4),
    Sketcher.Constraint("Parallel", 2, 5),
    Sketcher.Constraint("Parallel", 5, 7),
    Sketcher.Constraint("Parallel", 4, 8),
    Sketcher.Constraint("Parallel", 7, 9),
    Sketcher.Constraint("Parallel", 8, 11),
    Sketcher.Constraint("Vertical", 3, 2, 9, 2),
    Sketcher.Constraint("Equal", 2, 4),
    Sketcher.Constraint("DistanceY", 3, 2, -1, 1, Q("5.6 mm")),
    Sketcher.Constraint("DistanceY", -1, 1, 9, 2, Q("58.5 mm")),
    Sketcher.Constraint("DistanceX", 0, 2, -1, 1, Q("20.17 mm")),
    Sketcher.Constraint("DistanceY", -1, 1, 2, 2, Q("26.45 mm")),
    Sketcher.Constraint("DistanceX", 3, 2, 3, 1, Q("35.613809 mm")),
    Sketcher.Constraint("Distance", 0, Q("33.431962 mm")),
])
pocket6 = body.newObject("PartDesign::Pocket", "Pocket005")
pocket6.Profile = sketch9
pocket6.Type = "ThroughAll"
pocket6.Reversed = True

sketch10 = body.newObject("Sketcher::SketchObject", "Sketch009")
sketch10.AttachmentSupport = (doc.getObject("XZ_Plane"), [""])
sketch10.MapMode = "FlatFace"
sketch10.AttachmentOffset = App.Placement(Vector(0, 0, -5), App.Rotation())
add_polygon(sketch10, [(-61, 3), (-24, 3), (-24, -7), (-61, -7)])
sketch10.addConstraint([
    Sketcher.Constraint("Horizontal", 0),
    Sketcher.Constraint("Vertical", 1),
    Sketcher.Constraint("Horizontal", 2),
    Sketcher.Constraint("Vertical", 3),
    Sketcher.Constraint("DistanceY", 1, 2, 1, 1, Q("10 mm")),
    Sketcher.Constraint("DistanceX", 2, 2, -1, 1, Q("61 mm")),
    Sketcher.Constraint("DistanceX", 0, 1, 0, 2, Q("36.83 mm")),
    Sketcher.Constraint("DistanceY", -1, 1, 0, 2, Q("3.1 mm")),
])
pocket7 = body.newObject("PartDesign::Pocket", "Pocket006")
pocket7.Profile = sketch10
pocket7.Type = "ThroughAll"
pocket7.Reversed = True
doc.recompute()

mirrored4 = body.newObject("PartDesign::Mirrored", "Mirrored003")
mirrored4.Originals = [pocket7]
mirrored4.MirrorPlane = (doc.getObject("YZ_Plane"), [""])
body.Tip = mirrored4

doc.recompute()
